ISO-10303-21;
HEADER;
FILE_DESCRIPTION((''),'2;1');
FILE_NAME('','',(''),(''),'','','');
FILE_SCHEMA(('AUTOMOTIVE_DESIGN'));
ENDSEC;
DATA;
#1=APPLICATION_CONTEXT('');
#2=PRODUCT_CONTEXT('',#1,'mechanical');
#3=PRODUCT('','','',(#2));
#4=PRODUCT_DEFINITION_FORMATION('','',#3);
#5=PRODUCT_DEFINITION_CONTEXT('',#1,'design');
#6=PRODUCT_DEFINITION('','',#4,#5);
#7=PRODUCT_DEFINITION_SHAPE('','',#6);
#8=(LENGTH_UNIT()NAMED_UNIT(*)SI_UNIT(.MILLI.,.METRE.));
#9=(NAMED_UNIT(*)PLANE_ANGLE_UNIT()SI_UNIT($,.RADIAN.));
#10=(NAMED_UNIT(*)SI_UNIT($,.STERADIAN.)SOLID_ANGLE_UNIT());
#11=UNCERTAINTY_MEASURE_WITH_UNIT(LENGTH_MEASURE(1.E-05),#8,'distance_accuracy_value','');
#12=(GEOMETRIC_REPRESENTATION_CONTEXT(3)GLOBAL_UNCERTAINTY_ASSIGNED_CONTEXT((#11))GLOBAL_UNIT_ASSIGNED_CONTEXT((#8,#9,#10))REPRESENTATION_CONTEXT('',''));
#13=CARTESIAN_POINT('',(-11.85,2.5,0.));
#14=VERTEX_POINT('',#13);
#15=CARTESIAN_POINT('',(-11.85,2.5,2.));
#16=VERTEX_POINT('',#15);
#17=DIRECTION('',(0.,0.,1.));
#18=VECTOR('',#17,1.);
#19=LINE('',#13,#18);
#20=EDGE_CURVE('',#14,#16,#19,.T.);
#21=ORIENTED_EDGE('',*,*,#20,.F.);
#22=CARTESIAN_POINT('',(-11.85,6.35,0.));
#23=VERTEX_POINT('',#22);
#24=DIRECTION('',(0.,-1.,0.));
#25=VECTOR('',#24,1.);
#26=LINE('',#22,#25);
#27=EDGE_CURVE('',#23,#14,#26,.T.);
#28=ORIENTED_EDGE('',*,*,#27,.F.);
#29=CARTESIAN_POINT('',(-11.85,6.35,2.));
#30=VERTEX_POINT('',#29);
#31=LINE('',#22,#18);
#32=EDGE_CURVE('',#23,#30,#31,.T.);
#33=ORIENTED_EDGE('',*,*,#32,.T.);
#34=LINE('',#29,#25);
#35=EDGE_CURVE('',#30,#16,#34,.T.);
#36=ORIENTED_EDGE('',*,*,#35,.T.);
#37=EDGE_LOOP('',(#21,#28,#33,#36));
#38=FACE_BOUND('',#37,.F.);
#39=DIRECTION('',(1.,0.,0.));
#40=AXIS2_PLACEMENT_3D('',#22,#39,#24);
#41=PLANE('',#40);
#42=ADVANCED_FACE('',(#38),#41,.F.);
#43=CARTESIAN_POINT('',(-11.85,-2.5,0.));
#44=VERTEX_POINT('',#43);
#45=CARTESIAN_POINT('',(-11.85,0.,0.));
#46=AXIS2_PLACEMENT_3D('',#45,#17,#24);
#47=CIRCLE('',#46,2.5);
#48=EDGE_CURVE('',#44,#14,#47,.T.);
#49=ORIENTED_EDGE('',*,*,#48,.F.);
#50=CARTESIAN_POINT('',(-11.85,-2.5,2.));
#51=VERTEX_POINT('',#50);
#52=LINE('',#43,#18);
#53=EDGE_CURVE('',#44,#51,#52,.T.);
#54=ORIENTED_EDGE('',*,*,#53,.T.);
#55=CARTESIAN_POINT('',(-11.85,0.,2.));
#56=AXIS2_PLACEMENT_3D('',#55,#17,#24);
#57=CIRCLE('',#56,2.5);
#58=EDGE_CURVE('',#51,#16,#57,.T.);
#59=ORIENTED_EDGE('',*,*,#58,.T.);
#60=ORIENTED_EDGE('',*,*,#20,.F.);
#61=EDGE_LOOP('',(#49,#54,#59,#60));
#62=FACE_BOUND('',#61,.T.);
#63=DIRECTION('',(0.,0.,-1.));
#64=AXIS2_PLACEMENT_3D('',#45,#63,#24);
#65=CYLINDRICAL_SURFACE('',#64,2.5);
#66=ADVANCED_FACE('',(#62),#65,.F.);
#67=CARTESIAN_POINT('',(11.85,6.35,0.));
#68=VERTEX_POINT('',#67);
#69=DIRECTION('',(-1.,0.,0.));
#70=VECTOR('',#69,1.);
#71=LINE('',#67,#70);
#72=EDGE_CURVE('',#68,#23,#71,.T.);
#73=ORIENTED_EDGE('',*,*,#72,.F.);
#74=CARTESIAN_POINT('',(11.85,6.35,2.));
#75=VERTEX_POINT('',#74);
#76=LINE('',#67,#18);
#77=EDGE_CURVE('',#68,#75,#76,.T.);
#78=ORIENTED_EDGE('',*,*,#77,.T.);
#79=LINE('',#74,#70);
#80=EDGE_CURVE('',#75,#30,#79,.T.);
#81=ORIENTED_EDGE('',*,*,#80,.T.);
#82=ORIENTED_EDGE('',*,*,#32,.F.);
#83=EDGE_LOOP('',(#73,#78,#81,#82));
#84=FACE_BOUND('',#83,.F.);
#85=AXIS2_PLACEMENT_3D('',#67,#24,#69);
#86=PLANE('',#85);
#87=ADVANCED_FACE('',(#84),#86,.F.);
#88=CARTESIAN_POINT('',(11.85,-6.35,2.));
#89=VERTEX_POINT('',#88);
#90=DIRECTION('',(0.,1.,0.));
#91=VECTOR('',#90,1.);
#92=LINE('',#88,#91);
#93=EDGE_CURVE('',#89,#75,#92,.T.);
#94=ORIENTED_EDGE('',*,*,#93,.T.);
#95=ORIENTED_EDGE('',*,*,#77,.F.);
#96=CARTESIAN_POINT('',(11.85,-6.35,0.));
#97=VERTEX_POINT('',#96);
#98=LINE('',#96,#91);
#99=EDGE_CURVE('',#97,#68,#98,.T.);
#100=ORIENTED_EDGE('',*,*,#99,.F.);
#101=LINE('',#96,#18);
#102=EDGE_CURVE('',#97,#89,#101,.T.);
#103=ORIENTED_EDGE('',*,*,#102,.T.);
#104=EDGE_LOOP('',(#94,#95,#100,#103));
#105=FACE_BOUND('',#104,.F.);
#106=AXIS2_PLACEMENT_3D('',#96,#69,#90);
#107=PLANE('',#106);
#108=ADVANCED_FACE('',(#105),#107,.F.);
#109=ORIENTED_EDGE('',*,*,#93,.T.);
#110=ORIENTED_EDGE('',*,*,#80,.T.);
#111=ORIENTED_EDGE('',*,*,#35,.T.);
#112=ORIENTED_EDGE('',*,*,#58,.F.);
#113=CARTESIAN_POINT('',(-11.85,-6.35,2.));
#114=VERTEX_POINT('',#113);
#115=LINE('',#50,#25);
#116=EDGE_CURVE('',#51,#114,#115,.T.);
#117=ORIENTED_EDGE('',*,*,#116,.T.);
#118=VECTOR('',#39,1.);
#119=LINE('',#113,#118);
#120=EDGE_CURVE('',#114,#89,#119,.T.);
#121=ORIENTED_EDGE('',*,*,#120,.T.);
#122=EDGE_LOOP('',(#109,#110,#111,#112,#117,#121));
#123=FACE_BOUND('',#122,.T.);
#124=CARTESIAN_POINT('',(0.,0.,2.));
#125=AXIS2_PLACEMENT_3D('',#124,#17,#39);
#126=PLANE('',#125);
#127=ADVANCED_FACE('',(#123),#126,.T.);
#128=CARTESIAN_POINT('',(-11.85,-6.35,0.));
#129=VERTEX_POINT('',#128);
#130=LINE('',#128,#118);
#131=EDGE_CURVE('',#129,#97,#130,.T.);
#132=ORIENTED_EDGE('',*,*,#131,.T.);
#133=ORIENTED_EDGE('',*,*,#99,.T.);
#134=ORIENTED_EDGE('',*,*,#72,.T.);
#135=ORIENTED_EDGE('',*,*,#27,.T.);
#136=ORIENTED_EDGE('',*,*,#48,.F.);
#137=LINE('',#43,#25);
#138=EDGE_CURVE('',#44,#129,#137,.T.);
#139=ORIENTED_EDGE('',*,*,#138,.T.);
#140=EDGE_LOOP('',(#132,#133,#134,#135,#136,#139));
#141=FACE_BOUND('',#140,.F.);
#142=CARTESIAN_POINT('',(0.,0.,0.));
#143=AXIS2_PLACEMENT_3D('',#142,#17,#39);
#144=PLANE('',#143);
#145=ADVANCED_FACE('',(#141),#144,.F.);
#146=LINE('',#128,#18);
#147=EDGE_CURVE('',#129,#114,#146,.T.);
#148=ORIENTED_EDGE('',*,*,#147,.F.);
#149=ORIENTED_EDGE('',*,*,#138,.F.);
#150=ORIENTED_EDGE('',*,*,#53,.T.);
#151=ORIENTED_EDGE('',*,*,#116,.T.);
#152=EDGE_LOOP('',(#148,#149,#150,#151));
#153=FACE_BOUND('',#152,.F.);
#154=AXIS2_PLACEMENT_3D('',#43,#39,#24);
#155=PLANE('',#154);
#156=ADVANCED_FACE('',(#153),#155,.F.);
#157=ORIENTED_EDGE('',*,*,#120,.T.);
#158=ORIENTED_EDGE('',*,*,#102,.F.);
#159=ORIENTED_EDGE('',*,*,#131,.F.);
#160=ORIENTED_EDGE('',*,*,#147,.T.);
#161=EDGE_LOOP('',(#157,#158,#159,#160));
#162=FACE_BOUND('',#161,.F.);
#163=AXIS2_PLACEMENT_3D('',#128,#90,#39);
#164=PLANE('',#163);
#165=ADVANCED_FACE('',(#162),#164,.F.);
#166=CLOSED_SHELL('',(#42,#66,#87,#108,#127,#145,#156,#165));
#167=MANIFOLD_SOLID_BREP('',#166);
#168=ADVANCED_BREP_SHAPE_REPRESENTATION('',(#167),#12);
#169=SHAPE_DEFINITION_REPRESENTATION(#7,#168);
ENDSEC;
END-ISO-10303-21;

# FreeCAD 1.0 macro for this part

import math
import FreeCAD as App
import Part
import Sketcher

V = App.Vector
Q = App.Units.Quantity

doc = App.newDocument("Part")
body = doc.addObject("PartDesign::Body", "Body")

# Sketch on XY plane
sketch1 = body.newObject("Sketcher::SketchObject", "Sketch")
sketch1.AttachmentSupport = (doc.getObject("XY_Plane"), [""])
sketch1.MapMode = "FlatFace"
sketch1.addGeometry([
    Part.LineSegment(V(-11.8, -2.5, 0), V(-11.8, -6.3, 0)),  # 0
    Part.LineSegment(V(-11.8, -6.3, 0), V(11.8, -6.3, 0)),  # 1
    Part.LineSegment(V(11.8, -6.3, 0), V(11.8, 6.3, 0)),  # 2
    Part.LineSegment(V(11.8, 6.3, 0), V(-11.8, 6.3, 0)),  # 3
    Part.LineSegment(V(-11.8, 6.3, 0), V(-11.8, 2.5, 0)),  # 4
    Part.ArcOfCircle(Part.Circle(V(-11.8, 0, 0), V(0, 0, 1), 2.5), math.radians(-90), math.radians(90)),  # 5
], False)
sketch1.addConstraint([
    Sketcher.Constraint("Coincident", 0, 2, 1, 1),
    Sketcher.Constraint("Coincident", 1, 2, 2, 1),
    Sketcher.Constraint("Coincident", 2, 2, 3, 1),
    Sketcher.Constraint("Coincident", 3, 2, 4, 1),
    Sketcher.Constraint("Coincident", 4, 2, 5, 2),
    Sketcher.Constraint("Coincident", 5, 1, 0, 1),
    Sketcher.Constraint("Vertical", 0),
    Sketcher.Constraint("Horizontal", 1),
    Sketcher.Constraint("Vertical", 2),
    Sketcher.Constraint("Horizontal", 3),
    Sketcher.Constraint("Vertical", 4),
    Sketcher.Constraint("Symmetric", 0, 2, 2, 2, -1, 1),
    Sketcher.Constraint("Symmetric", 4, 2, 5, 1, -1),
    Sketcher.Constraint("Vertical", 5, 3, 0, 2),
    Sketcher.Constraint("Radius", 5, Q("2.5 mm")),
    Sketcher.Constraint("DistanceX", 1, 1, 1, 2, Q("23.7 mm")),
    Sketcher.Constraint("DistanceY", 2, 1, 2, 2, Q("12.7 mm")),
])
pad1 = body.newObject("PartDesign::Pad", "Pad")
pad1.Profile = sketch1
pad1.Length = 2

doc.recompute()
